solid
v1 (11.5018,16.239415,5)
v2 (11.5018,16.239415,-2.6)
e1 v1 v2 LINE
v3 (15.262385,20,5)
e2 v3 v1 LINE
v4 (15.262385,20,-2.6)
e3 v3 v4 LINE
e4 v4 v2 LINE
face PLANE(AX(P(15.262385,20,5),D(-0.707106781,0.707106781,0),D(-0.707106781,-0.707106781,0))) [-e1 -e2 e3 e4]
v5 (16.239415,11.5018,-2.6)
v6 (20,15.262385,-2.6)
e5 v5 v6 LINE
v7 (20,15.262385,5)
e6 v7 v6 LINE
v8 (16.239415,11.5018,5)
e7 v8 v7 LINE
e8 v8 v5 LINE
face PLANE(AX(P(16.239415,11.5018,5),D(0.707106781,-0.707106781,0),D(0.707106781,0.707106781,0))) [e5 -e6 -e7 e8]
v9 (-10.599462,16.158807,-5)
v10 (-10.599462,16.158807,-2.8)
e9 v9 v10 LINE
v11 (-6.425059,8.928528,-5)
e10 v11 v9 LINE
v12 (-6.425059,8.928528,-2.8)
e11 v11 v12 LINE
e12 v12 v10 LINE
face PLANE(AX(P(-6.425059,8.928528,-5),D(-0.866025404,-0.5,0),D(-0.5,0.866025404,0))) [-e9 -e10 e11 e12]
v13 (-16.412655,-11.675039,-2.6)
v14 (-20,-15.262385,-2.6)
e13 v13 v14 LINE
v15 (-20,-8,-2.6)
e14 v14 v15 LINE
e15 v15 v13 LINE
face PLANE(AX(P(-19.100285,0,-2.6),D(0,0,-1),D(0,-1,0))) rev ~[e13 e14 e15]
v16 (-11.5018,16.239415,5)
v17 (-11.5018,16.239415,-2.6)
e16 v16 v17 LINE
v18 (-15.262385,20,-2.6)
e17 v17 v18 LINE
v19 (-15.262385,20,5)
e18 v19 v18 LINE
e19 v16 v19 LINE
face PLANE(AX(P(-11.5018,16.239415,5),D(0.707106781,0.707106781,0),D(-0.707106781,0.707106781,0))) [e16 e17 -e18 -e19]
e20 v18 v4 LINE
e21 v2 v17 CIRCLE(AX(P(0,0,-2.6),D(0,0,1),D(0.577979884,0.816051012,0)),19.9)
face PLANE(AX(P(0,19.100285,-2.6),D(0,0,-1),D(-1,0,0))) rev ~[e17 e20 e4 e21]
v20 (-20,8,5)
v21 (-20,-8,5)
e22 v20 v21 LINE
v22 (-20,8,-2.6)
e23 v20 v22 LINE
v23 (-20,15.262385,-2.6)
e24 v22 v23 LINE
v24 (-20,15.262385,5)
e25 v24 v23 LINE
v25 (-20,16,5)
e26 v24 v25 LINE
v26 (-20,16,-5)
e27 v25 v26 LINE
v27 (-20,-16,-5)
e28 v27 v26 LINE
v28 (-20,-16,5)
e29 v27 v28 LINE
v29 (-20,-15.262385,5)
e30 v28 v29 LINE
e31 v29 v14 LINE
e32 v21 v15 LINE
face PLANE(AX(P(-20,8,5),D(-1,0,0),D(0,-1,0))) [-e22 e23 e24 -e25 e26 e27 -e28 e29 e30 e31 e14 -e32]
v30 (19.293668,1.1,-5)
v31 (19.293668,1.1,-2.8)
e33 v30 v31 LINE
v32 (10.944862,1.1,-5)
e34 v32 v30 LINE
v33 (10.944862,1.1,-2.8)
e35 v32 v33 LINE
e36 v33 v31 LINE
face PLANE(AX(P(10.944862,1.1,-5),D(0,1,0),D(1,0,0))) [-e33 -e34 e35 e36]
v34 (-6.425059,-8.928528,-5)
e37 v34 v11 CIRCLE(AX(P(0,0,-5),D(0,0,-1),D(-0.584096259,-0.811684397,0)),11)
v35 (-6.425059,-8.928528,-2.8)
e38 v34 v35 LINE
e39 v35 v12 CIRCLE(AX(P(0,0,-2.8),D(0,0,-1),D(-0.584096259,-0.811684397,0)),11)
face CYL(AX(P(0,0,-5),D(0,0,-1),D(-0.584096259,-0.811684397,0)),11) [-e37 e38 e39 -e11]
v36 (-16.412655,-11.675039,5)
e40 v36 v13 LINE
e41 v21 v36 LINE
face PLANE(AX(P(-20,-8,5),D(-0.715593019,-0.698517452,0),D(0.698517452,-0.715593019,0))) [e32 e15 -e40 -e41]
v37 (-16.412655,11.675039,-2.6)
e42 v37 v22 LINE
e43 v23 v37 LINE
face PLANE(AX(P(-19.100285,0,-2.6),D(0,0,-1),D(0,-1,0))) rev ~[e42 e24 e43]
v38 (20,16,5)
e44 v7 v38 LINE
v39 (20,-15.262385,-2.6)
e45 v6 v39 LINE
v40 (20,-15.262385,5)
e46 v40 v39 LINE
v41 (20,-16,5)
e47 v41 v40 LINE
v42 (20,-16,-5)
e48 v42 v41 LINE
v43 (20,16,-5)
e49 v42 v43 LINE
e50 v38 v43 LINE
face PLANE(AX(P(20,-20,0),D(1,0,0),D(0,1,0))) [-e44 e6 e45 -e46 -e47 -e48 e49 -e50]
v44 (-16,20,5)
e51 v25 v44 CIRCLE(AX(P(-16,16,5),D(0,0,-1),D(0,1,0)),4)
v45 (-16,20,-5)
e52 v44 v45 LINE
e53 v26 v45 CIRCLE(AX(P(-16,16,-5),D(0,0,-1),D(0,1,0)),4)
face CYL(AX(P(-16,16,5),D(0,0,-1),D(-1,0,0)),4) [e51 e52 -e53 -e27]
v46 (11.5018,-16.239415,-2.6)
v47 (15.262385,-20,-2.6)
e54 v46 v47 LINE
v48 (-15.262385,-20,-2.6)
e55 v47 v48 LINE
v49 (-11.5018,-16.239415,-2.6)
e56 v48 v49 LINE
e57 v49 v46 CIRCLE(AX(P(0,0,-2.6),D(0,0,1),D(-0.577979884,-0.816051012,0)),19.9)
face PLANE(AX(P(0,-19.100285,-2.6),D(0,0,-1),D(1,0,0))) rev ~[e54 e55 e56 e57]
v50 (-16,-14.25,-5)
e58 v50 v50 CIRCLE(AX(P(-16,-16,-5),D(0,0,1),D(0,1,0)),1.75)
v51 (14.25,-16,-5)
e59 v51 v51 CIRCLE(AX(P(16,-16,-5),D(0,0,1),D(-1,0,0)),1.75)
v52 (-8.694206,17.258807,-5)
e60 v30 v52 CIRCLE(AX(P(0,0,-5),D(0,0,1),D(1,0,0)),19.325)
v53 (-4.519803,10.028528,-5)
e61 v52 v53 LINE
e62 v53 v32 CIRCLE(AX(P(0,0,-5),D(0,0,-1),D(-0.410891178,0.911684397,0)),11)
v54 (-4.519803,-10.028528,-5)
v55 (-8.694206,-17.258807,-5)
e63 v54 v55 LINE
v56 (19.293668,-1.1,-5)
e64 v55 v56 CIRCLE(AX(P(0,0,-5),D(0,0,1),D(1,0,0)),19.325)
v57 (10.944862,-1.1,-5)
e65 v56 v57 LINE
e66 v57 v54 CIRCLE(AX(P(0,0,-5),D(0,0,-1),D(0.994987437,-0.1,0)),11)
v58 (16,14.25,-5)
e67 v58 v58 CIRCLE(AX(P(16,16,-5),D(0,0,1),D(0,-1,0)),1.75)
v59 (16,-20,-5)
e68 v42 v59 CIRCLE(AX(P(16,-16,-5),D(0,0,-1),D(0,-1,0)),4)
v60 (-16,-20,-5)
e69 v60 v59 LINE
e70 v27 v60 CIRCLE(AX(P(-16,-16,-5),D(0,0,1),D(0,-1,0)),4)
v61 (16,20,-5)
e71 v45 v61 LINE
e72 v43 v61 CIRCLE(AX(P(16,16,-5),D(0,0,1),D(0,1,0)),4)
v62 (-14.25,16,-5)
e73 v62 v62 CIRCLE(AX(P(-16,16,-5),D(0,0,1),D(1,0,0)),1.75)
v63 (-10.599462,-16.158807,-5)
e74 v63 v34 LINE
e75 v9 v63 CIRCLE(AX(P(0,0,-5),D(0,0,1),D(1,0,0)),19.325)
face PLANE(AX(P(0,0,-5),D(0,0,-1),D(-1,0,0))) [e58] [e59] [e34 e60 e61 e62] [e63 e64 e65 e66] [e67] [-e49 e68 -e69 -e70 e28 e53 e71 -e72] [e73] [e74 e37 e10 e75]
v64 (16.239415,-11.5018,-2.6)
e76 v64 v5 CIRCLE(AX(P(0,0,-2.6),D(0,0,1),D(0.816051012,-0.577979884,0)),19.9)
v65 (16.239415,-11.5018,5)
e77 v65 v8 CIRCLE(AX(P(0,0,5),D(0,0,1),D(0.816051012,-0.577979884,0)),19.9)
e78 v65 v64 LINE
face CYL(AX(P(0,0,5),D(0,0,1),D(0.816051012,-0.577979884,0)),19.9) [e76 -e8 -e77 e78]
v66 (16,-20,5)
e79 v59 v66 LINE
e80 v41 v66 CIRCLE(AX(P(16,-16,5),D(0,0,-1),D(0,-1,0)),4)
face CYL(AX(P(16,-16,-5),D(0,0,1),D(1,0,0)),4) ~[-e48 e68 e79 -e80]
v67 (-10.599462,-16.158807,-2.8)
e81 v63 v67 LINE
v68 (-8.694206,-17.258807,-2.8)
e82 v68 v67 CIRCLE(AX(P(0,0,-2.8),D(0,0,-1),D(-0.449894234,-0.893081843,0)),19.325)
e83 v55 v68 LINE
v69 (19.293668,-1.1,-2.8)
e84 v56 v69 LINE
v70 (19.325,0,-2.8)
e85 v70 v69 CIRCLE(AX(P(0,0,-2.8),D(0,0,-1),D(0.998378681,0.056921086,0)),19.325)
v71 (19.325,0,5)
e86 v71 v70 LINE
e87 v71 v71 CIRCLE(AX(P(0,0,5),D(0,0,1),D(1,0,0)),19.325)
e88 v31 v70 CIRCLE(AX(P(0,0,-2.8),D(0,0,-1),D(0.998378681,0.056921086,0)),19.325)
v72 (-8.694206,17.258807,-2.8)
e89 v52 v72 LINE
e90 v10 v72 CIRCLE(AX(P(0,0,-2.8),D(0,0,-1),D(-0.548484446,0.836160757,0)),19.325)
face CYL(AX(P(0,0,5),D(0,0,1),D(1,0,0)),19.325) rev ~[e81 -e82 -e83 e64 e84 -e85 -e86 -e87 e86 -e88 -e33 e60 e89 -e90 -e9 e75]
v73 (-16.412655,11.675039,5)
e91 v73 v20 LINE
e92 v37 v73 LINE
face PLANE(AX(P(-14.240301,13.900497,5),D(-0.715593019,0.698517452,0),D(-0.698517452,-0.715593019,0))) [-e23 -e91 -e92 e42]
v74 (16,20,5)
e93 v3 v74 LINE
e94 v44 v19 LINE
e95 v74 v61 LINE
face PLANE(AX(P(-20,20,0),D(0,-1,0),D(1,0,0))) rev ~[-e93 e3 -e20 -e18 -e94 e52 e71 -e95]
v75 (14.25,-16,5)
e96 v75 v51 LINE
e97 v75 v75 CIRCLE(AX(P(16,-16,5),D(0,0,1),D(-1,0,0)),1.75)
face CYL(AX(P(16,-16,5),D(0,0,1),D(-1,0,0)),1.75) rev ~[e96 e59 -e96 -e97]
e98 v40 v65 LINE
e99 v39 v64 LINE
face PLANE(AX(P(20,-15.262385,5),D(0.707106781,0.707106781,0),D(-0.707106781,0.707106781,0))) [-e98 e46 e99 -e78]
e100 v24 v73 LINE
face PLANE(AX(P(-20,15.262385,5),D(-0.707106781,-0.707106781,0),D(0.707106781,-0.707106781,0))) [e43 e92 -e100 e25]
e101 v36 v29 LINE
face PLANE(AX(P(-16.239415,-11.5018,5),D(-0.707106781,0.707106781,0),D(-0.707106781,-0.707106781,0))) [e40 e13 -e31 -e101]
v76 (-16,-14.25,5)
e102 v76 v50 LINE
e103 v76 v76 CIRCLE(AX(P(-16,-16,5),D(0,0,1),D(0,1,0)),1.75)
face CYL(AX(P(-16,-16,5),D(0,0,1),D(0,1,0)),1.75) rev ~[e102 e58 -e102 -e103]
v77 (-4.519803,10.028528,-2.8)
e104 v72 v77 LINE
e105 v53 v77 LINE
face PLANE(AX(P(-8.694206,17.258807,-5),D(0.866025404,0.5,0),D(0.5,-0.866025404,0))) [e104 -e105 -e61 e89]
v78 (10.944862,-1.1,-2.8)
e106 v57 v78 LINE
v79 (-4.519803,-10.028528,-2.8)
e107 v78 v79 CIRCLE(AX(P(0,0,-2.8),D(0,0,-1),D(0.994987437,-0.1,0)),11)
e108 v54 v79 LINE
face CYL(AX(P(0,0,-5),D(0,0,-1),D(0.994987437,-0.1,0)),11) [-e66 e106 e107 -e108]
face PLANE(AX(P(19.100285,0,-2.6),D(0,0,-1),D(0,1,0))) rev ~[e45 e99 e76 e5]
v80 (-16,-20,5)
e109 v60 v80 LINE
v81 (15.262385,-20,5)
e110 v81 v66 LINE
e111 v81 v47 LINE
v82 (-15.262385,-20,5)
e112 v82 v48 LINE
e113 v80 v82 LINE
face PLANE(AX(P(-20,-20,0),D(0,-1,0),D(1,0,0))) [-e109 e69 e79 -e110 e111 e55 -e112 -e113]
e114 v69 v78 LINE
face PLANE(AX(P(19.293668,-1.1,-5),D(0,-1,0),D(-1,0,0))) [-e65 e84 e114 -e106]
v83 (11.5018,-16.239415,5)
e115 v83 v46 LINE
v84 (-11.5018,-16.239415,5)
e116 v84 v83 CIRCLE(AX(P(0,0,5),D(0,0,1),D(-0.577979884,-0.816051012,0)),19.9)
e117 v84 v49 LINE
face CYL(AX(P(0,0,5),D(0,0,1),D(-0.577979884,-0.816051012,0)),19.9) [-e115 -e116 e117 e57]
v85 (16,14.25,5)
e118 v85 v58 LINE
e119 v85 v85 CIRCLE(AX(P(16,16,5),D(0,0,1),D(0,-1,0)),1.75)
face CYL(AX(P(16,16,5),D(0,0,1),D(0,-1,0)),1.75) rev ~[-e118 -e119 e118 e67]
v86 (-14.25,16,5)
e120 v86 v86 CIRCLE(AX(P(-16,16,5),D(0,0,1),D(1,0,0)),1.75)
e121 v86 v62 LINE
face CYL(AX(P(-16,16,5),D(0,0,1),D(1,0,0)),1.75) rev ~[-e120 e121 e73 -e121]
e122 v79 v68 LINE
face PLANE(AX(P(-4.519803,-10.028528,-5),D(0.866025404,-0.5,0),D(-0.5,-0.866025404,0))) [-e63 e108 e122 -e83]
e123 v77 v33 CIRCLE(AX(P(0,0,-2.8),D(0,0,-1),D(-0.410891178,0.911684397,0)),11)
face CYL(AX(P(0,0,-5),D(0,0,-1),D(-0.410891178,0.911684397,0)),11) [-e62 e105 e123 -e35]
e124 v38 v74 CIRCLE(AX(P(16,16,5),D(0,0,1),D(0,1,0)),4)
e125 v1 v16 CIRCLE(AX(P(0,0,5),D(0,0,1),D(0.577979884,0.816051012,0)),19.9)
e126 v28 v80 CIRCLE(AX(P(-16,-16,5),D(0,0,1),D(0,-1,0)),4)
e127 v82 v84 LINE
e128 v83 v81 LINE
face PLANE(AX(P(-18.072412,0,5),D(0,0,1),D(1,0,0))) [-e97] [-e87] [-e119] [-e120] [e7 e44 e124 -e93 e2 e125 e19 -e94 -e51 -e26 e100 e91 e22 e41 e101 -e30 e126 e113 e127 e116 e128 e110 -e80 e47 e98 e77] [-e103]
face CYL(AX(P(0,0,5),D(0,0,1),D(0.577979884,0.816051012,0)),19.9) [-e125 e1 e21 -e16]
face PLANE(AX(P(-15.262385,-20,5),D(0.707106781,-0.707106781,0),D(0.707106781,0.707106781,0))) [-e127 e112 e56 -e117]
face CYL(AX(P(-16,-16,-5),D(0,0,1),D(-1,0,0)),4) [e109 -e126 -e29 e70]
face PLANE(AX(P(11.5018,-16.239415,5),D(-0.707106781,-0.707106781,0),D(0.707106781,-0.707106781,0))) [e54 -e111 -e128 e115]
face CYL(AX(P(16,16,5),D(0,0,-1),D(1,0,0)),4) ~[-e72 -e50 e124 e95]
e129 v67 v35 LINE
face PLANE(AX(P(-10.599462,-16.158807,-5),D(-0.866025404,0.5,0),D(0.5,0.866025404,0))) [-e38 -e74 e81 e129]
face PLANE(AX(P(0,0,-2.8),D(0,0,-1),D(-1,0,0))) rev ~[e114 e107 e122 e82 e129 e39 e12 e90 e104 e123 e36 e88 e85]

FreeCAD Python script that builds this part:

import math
import FreeCAD as App
import Part
import Sketcher
from FreeCAD import Vector
Q = App.Units.Quantity


def edges_at(feature, points):
    """Names of the edges that pass closest to the given points."""
    edges = feature.Shape.Edges
    near = lambda p: min(range(len(edges)), key=lambda i: edges[i].distToShape(Part.Vertex(*p))[0])
    return sorted({f"Edge{near(p) + 1}" for p in points})


def add_polygon(sketch, points):
    """Adds a closed chain of lines whose ends are joined by coincident constraints."""
    first, n = sketch.GeometryCount, len(points)
    for a, b in zip(points, points[1:] + points[:1]):
        sketch.addGeometry(Part.LineSegment(App.Vector(*a, 0), App.Vector(*b, 0)), False)
    for i in range(n):
        sketch.addConstraint(Sketcher.Constraint("Coincident", first + i, 2, first + (i + 1) % n, 1))

doc = App.newDocument("Part")
body = doc.addObject("PartDesign::Body", "Body")

sketch1 = body.newObject("Sketcher::SketchObject", "Sketch")
sketch1.AttachmentSupport = (doc.getObject("XY_Plane"), [""])
sketch1.MapMode = "FlatFace"
add_polygon(sketch1, [(-20, 20), (-20, -20), (20, -20), (20, 20)])
sketch1.addConstraint([
    Sketcher.Constraint("Vertical", 0),
    Sketcher.Constraint("Horizontal", 1),
    Sketcher.Constraint("Vertical", 2),
    Sketcher.Constraint("Horizontal", 3),
    Sketcher.Constraint("Symmetric", 0, 2, 2, 2, -1, 1),
    Sketcher.Constraint("Equal", 3, 0),
    Sketcher.Constraint("DistanceX", 1, 1, 1, 2, Q("40 mm")),
])
pad1 = body.newObject("PartDesign::Pad", "Pad")
pad1.Profile = sketch1
pad1.Length = 10
pad1.Midplane = True
doc.recompute()

fillet = body.newObject("PartDesign::Fillet", "Fillet")
fillet.Base = (pad1, edges_at(pad1, [
    (20, -20, 0),
    (-20, -20, 0),
    (-20, 20, 0),
    (20, 20, 0),
]))
fillet.Radius = 4

sketch2 = body.newObject("Sketcher::SketchObject", "Sketch001")
sketch2.AttachmentSupport = (doc.getObject("XY_Plane"), [""])
sketch2.MapMode = "FlatFace"
sketch2.AttachmentOffset = App.Placement(Vector(0, 0, 5), App.Rotation())
sketch2.addGeometry(Part.Circle(Vector(0, 0, 0), Vector(0, 0, 1), 19), False)
sketch2.addConstraint([
    Sketcher.Constraint("Coincident", 0, 3, -1, 1),
    Sketcher.Constraint("Diameter", 0, Q("38.65 mm")),
])
pocket1 = body.newObject("PartDesign::Pocket", "Pocket")
pocket1.Profile = sketch2
pocket1.Type = "ThroughAll"

sketch3 = body.newObject("Sketcher::SketchObject", "Sketch002")
sketch3.AttachmentSupport = (doc.getObject("XY_Plane"), [""])
sketch3.MapMode = "FlatFace"
sketch3.AttachmentOffset = App.Placement(Vector(0, 0, 5), App.Rotation())
sketch3.addGeometry([
    Part.LineSegment(Vector(12, 16, 0), Vector(15, 20, 0)),
    Part.LineSegment(Vector(15, 20, 0), Vector(-15, 20, 0)),
    Part.LineSegment(Vector(-15, 20, 0), Vector(-12, 16, 0)),
    Part.ArcOfCircle(Part.Circle(Vector(0, 0, 0), Vector(0, 0, 1), 20), math.radians(55), math.radians(125)),
], False)
sketch3.addConstraint([
    Sketcher.Constraint("Coincident", 0, 2, 1, 1),
    Sketcher.Constraint("Coincident", 1, 2, 2, 1),
    Sketcher.Constraint("Coincident", 2, 2, 3, 2),
    Sketcher.Constraint("Coincident", 3, 1, 0, 1),
    Sketcher.Constraint("Horizontal", 1),
    Sketcher.Constraint("Coincident", 3, 3, -1, 1),
    Sketcher.Constraint("Perpendicular", 0, 2),
    Sketcher.Constraint("Horizontal", 2, 2, 3, 1),
    Sketcher.Constraint("Equal", 0, 2),
    Sketcher.Constraint("Radius", 3, Q("19.9 mm")),
    Sketcher.Constraint("DistanceY", -1, 1, 0, 2, Q("20 mm")),
    Sketcher.Constraint("DistanceX", 1, 2, 1, 1, Q("30.524769 mm")),
])
pocket2 = body.newObject("PartDesign::Pocket", "Pocket001")
pocket2.Profile = sketch3
pocket2.Length = 7.6

sketch4 = body.newObject("Sketcher::SketchObject", "Sketch003")
sketch4.AttachmentSupport = (doc.getObject("XY_Plane"), [""])
sketch4.MapMode = "FlatFace"
sketch4.AttachmentOffset = App.Placement(Vector(0, 0, 5), App.Rotation())
sketch4.addGeometry(Part.Circle(Vector(-16, 16, 0), Vector(0, 0, 1), 1.8), False)
sketch4.addConstraint([
    Sketcher.Constraint("Diameter", 0, Q("3.5 mm")),
    Sketcher.Constraint("DistanceX", 0, 3, -1, 1, Q("16 mm")),
    Sketcher.Constraint("DistanceY", -1, 1, 0, 3, Q("16 mm")),
])
pocket3 = body.newObject("PartDesign::Pocket", "Pocket002")
pocket3.Profile = sketch4
pocket3.Length = 10
doc.recompute()

polarpattern = body.newObject("PartDesign::PolarPattern", "PolarPattern")
polarpattern.Originals = [pocket2, pocket3]
polarpattern.Axis = (doc.getObject("Z_Axis"), [""])
polarpattern.Angle = 360
polarpattern.Occurrences = 4
body.Tip = polarpattern

sketch5 = body.newObject("Sketcher::SketchObject", "Sketch004")
sketch5.AttachmentSupport = (doc.getObject("XY_Plane"), [""])
sketch5.MapMode = "FlatFace"
sketch5.AttachmentOffset = App.Placement(Vector(0, 0, -5), App.Rotation())
sketch5.addGeometry([
    Part.LineSegment(Vector(-6.4, 8.9, 0), Vector(-10.6, 16.2, 0)),
    Part.ArcOfCircle(Part.Circle(Vector(0, 0, 0), Vector(0, 0, 1), 19.3), math.radians(116.74), math.radians(123.26)),
    Part.LineSegment(Vector(-8.7, 17.3, 0), Vector(-4.5, 10, 0)),
    Part.ArcOfCircle(Part.Circle(Vector(0, 0, 0), Vector(0, 0, 1), 11), math.radians(6), math.radians(114)),
    Part.LineSegment(Vector(10.9, 1.1, 0), Vector(19.3, 1.1, 0)),
    Part.ArcOfCircle(Part.Circle(Vector(0, 0, 0), Vector(0, 0, 1), 19.3), math.radians(-3.26), math.radians(3.26)),
    Part.LineSegment(Vector(19.3, -1.1, 0), Vector(10.9, -1.1, 0)),
    Part.ArcOfCircle(Part.Circle(Vector(0, 0, 0), Vector(0, 0, 1), 11), math.radians(-114), math.radians(-6)),
    Part.LineSegment(Vector(-4.5, -10, 0), Vector(-8.7, -17.3, 0)),
    Part.ArcOfCircle(Part.Circle(Vector(0, 0, 0), Vector(0, 0, 1), 19.3), math.radians(-123.26), math.radians(-116.74)),
    Part.LineSegment(Vector(-10.6, -16.2, 0), Vector(-6.4, -8.9, 0)),
    Part.ArcOfCircle(Part.Circle(Vector(0, 0, 0), Vector(0, 0, 1), 11), math.radians(126), math.radians(234)),
], False)
sketch5.addConstraint([
    Sketcher.Constraint("Coincident", 0, 2, 1, 2),
    Sketcher.Constraint("Coincident", 1, 1, 2, 1),
    Sketcher.Constraint("Coincident", 2, 2, 3, 2),
    Sketcher.Constraint("Coincident", 3, 1, 4, 1),
    Sketcher.Constraint("Coincident", 4, 2, 5, 2),
    Sketcher.Constraint("Coincident", 5, 1, 6, 1),
    Sketcher.Constraint("Coincident", 6, 2, 7, 2),
    Sketcher.Constraint("Coincident", 7, 1, 8, 1),
    Sketcher.Constraint("Coincident", 8, 2, 9, 2),
    Sketcher.Constraint("Coincident", 9, 1, 10, 1),
    Sketcher.Constraint("Coincident", 10, 2, 11, 2),
    Sketcher.Constraint("Coincident", 11, 1, 0, 1),
    Sketcher.Constraint("Horizontal", 4),
    Sketcher.Constraint("Horizontal", 6),
    Sketcher.Constraint("Coincident", 1, 3, -1, 1),
    Sketcher.Constraint("Coincident", 3, 3, -1, 1),
    Sketcher.Constraint("Coincident", 5, 3, -1, 1),
    Sketcher.Constraint("Coincident", 7, 3, -1, 1),
    Sketcher.Constraint("Coincident", 9, 3, -1, 1),
    Sketcher.Constraint("Coincident", 11, 3, -1, 1),
    Sketcher.Constraint("Equal", 1, 5),
    Sketcher.Constraint("Equal", 3, 7),
    Sketcher.Constraint("Equal", 5, 9),
    Sketcher.Constraint("Equal", 7, 11),
    Sketcher.Constraint("Parallel", 0, 2),
    Sketcher.Constraint("Parallel", 8, 10),
    Sketcher.Constraint("Vertical", 4, 2, 5, 1),
    Sketcher.Constraint("Vertical", 2, 2, 7, 1),
    Sketcher.Constraint("Vertical", 1, 1, 8, 2),
    Sketcher.Constraint("Vertical", 0, 2, 9, 1),
    Sketcher.Constraint("Equal", 0, 2),
    Sketcher.Constraint("Radius", 3, Q("11 mm")),
    Sketcher.Constraint("Angle", 0, Q("120 deg")),
    Sketcher.Constraint("Radius", 1, Q("19.325 mm")),
    Sketcher.Constraint("DistanceY", -1, 1, 3, 1, Q("1.1 mm")),
    Sketcher.Constraint("DistanceY", 0, 2, 1, 1, Q("1.1 mm")),
])
pad2 = body.newObject("PartDesign::Pad", "Pad001")
pad2.Profile = sketch5
pad2.Length = 2.2

sketch6 = body.newObject("Sketcher::SketchObject", "Sketch005")
sketch6.AttachmentSupport = (doc.getObject("XY_Plane"), [""])
sketch6.MapMode = "FlatFace"
sketch6.AttachmentOffset = App.Placement(Vector(0, 0, 5), App.Rotation())
sketch6.addGeometry([
    Part.LineSegment(Vector(-14, 14, 0), Vector(-20, 8, 0)),
    Part.LineSegment(Vector(-20, 8, 0), Vector(-20, -8, 0)),
    Part.LineSegment(Vector(-20, -8, 0), Vector(-14, -14, 0)),
    Part.ArcOfCircle(Part.Circle(Vector(0, 0, 0), Vector(0, 0, 1), 20), math.radians(136), math.radians(224)),
], False)
sketch6.addConstraint([
    Sketcher.Constraint("Coincident", 0, 2, 1, 1),
    Sketcher.Constraint("Coincident", 1, 2, 2, 1),
    Sketcher.Constraint("Tangent", 2, 2, 3, 2),
    Sketcher.Constraint("Tangent", 3, 1, 0, 1),
    Sketcher.Constraint("Vertical", 1),
    Sketcher.Constraint("Coincident", 3, 3, -1, 1),
    Sketcher.Constraint("Vertical", 2, 2, 3, 1),
    Sketcher.Constraint("Radius", 3, Q("19.9 mm")),
    Sketcher.Constraint("DistanceY", 1, 2, 1, 1, Q("16 mm")),
    Sketcher.Constraint("DistanceX", 0, 2, -1, 1, Q("20 mm")),
])
pad3 = body.newObject("PartDesign::Pad", "Pad002")
pad3.Profile = sketch6
pad3.Length = 7.6
pad3.Reversed = True

doc.recompute()
